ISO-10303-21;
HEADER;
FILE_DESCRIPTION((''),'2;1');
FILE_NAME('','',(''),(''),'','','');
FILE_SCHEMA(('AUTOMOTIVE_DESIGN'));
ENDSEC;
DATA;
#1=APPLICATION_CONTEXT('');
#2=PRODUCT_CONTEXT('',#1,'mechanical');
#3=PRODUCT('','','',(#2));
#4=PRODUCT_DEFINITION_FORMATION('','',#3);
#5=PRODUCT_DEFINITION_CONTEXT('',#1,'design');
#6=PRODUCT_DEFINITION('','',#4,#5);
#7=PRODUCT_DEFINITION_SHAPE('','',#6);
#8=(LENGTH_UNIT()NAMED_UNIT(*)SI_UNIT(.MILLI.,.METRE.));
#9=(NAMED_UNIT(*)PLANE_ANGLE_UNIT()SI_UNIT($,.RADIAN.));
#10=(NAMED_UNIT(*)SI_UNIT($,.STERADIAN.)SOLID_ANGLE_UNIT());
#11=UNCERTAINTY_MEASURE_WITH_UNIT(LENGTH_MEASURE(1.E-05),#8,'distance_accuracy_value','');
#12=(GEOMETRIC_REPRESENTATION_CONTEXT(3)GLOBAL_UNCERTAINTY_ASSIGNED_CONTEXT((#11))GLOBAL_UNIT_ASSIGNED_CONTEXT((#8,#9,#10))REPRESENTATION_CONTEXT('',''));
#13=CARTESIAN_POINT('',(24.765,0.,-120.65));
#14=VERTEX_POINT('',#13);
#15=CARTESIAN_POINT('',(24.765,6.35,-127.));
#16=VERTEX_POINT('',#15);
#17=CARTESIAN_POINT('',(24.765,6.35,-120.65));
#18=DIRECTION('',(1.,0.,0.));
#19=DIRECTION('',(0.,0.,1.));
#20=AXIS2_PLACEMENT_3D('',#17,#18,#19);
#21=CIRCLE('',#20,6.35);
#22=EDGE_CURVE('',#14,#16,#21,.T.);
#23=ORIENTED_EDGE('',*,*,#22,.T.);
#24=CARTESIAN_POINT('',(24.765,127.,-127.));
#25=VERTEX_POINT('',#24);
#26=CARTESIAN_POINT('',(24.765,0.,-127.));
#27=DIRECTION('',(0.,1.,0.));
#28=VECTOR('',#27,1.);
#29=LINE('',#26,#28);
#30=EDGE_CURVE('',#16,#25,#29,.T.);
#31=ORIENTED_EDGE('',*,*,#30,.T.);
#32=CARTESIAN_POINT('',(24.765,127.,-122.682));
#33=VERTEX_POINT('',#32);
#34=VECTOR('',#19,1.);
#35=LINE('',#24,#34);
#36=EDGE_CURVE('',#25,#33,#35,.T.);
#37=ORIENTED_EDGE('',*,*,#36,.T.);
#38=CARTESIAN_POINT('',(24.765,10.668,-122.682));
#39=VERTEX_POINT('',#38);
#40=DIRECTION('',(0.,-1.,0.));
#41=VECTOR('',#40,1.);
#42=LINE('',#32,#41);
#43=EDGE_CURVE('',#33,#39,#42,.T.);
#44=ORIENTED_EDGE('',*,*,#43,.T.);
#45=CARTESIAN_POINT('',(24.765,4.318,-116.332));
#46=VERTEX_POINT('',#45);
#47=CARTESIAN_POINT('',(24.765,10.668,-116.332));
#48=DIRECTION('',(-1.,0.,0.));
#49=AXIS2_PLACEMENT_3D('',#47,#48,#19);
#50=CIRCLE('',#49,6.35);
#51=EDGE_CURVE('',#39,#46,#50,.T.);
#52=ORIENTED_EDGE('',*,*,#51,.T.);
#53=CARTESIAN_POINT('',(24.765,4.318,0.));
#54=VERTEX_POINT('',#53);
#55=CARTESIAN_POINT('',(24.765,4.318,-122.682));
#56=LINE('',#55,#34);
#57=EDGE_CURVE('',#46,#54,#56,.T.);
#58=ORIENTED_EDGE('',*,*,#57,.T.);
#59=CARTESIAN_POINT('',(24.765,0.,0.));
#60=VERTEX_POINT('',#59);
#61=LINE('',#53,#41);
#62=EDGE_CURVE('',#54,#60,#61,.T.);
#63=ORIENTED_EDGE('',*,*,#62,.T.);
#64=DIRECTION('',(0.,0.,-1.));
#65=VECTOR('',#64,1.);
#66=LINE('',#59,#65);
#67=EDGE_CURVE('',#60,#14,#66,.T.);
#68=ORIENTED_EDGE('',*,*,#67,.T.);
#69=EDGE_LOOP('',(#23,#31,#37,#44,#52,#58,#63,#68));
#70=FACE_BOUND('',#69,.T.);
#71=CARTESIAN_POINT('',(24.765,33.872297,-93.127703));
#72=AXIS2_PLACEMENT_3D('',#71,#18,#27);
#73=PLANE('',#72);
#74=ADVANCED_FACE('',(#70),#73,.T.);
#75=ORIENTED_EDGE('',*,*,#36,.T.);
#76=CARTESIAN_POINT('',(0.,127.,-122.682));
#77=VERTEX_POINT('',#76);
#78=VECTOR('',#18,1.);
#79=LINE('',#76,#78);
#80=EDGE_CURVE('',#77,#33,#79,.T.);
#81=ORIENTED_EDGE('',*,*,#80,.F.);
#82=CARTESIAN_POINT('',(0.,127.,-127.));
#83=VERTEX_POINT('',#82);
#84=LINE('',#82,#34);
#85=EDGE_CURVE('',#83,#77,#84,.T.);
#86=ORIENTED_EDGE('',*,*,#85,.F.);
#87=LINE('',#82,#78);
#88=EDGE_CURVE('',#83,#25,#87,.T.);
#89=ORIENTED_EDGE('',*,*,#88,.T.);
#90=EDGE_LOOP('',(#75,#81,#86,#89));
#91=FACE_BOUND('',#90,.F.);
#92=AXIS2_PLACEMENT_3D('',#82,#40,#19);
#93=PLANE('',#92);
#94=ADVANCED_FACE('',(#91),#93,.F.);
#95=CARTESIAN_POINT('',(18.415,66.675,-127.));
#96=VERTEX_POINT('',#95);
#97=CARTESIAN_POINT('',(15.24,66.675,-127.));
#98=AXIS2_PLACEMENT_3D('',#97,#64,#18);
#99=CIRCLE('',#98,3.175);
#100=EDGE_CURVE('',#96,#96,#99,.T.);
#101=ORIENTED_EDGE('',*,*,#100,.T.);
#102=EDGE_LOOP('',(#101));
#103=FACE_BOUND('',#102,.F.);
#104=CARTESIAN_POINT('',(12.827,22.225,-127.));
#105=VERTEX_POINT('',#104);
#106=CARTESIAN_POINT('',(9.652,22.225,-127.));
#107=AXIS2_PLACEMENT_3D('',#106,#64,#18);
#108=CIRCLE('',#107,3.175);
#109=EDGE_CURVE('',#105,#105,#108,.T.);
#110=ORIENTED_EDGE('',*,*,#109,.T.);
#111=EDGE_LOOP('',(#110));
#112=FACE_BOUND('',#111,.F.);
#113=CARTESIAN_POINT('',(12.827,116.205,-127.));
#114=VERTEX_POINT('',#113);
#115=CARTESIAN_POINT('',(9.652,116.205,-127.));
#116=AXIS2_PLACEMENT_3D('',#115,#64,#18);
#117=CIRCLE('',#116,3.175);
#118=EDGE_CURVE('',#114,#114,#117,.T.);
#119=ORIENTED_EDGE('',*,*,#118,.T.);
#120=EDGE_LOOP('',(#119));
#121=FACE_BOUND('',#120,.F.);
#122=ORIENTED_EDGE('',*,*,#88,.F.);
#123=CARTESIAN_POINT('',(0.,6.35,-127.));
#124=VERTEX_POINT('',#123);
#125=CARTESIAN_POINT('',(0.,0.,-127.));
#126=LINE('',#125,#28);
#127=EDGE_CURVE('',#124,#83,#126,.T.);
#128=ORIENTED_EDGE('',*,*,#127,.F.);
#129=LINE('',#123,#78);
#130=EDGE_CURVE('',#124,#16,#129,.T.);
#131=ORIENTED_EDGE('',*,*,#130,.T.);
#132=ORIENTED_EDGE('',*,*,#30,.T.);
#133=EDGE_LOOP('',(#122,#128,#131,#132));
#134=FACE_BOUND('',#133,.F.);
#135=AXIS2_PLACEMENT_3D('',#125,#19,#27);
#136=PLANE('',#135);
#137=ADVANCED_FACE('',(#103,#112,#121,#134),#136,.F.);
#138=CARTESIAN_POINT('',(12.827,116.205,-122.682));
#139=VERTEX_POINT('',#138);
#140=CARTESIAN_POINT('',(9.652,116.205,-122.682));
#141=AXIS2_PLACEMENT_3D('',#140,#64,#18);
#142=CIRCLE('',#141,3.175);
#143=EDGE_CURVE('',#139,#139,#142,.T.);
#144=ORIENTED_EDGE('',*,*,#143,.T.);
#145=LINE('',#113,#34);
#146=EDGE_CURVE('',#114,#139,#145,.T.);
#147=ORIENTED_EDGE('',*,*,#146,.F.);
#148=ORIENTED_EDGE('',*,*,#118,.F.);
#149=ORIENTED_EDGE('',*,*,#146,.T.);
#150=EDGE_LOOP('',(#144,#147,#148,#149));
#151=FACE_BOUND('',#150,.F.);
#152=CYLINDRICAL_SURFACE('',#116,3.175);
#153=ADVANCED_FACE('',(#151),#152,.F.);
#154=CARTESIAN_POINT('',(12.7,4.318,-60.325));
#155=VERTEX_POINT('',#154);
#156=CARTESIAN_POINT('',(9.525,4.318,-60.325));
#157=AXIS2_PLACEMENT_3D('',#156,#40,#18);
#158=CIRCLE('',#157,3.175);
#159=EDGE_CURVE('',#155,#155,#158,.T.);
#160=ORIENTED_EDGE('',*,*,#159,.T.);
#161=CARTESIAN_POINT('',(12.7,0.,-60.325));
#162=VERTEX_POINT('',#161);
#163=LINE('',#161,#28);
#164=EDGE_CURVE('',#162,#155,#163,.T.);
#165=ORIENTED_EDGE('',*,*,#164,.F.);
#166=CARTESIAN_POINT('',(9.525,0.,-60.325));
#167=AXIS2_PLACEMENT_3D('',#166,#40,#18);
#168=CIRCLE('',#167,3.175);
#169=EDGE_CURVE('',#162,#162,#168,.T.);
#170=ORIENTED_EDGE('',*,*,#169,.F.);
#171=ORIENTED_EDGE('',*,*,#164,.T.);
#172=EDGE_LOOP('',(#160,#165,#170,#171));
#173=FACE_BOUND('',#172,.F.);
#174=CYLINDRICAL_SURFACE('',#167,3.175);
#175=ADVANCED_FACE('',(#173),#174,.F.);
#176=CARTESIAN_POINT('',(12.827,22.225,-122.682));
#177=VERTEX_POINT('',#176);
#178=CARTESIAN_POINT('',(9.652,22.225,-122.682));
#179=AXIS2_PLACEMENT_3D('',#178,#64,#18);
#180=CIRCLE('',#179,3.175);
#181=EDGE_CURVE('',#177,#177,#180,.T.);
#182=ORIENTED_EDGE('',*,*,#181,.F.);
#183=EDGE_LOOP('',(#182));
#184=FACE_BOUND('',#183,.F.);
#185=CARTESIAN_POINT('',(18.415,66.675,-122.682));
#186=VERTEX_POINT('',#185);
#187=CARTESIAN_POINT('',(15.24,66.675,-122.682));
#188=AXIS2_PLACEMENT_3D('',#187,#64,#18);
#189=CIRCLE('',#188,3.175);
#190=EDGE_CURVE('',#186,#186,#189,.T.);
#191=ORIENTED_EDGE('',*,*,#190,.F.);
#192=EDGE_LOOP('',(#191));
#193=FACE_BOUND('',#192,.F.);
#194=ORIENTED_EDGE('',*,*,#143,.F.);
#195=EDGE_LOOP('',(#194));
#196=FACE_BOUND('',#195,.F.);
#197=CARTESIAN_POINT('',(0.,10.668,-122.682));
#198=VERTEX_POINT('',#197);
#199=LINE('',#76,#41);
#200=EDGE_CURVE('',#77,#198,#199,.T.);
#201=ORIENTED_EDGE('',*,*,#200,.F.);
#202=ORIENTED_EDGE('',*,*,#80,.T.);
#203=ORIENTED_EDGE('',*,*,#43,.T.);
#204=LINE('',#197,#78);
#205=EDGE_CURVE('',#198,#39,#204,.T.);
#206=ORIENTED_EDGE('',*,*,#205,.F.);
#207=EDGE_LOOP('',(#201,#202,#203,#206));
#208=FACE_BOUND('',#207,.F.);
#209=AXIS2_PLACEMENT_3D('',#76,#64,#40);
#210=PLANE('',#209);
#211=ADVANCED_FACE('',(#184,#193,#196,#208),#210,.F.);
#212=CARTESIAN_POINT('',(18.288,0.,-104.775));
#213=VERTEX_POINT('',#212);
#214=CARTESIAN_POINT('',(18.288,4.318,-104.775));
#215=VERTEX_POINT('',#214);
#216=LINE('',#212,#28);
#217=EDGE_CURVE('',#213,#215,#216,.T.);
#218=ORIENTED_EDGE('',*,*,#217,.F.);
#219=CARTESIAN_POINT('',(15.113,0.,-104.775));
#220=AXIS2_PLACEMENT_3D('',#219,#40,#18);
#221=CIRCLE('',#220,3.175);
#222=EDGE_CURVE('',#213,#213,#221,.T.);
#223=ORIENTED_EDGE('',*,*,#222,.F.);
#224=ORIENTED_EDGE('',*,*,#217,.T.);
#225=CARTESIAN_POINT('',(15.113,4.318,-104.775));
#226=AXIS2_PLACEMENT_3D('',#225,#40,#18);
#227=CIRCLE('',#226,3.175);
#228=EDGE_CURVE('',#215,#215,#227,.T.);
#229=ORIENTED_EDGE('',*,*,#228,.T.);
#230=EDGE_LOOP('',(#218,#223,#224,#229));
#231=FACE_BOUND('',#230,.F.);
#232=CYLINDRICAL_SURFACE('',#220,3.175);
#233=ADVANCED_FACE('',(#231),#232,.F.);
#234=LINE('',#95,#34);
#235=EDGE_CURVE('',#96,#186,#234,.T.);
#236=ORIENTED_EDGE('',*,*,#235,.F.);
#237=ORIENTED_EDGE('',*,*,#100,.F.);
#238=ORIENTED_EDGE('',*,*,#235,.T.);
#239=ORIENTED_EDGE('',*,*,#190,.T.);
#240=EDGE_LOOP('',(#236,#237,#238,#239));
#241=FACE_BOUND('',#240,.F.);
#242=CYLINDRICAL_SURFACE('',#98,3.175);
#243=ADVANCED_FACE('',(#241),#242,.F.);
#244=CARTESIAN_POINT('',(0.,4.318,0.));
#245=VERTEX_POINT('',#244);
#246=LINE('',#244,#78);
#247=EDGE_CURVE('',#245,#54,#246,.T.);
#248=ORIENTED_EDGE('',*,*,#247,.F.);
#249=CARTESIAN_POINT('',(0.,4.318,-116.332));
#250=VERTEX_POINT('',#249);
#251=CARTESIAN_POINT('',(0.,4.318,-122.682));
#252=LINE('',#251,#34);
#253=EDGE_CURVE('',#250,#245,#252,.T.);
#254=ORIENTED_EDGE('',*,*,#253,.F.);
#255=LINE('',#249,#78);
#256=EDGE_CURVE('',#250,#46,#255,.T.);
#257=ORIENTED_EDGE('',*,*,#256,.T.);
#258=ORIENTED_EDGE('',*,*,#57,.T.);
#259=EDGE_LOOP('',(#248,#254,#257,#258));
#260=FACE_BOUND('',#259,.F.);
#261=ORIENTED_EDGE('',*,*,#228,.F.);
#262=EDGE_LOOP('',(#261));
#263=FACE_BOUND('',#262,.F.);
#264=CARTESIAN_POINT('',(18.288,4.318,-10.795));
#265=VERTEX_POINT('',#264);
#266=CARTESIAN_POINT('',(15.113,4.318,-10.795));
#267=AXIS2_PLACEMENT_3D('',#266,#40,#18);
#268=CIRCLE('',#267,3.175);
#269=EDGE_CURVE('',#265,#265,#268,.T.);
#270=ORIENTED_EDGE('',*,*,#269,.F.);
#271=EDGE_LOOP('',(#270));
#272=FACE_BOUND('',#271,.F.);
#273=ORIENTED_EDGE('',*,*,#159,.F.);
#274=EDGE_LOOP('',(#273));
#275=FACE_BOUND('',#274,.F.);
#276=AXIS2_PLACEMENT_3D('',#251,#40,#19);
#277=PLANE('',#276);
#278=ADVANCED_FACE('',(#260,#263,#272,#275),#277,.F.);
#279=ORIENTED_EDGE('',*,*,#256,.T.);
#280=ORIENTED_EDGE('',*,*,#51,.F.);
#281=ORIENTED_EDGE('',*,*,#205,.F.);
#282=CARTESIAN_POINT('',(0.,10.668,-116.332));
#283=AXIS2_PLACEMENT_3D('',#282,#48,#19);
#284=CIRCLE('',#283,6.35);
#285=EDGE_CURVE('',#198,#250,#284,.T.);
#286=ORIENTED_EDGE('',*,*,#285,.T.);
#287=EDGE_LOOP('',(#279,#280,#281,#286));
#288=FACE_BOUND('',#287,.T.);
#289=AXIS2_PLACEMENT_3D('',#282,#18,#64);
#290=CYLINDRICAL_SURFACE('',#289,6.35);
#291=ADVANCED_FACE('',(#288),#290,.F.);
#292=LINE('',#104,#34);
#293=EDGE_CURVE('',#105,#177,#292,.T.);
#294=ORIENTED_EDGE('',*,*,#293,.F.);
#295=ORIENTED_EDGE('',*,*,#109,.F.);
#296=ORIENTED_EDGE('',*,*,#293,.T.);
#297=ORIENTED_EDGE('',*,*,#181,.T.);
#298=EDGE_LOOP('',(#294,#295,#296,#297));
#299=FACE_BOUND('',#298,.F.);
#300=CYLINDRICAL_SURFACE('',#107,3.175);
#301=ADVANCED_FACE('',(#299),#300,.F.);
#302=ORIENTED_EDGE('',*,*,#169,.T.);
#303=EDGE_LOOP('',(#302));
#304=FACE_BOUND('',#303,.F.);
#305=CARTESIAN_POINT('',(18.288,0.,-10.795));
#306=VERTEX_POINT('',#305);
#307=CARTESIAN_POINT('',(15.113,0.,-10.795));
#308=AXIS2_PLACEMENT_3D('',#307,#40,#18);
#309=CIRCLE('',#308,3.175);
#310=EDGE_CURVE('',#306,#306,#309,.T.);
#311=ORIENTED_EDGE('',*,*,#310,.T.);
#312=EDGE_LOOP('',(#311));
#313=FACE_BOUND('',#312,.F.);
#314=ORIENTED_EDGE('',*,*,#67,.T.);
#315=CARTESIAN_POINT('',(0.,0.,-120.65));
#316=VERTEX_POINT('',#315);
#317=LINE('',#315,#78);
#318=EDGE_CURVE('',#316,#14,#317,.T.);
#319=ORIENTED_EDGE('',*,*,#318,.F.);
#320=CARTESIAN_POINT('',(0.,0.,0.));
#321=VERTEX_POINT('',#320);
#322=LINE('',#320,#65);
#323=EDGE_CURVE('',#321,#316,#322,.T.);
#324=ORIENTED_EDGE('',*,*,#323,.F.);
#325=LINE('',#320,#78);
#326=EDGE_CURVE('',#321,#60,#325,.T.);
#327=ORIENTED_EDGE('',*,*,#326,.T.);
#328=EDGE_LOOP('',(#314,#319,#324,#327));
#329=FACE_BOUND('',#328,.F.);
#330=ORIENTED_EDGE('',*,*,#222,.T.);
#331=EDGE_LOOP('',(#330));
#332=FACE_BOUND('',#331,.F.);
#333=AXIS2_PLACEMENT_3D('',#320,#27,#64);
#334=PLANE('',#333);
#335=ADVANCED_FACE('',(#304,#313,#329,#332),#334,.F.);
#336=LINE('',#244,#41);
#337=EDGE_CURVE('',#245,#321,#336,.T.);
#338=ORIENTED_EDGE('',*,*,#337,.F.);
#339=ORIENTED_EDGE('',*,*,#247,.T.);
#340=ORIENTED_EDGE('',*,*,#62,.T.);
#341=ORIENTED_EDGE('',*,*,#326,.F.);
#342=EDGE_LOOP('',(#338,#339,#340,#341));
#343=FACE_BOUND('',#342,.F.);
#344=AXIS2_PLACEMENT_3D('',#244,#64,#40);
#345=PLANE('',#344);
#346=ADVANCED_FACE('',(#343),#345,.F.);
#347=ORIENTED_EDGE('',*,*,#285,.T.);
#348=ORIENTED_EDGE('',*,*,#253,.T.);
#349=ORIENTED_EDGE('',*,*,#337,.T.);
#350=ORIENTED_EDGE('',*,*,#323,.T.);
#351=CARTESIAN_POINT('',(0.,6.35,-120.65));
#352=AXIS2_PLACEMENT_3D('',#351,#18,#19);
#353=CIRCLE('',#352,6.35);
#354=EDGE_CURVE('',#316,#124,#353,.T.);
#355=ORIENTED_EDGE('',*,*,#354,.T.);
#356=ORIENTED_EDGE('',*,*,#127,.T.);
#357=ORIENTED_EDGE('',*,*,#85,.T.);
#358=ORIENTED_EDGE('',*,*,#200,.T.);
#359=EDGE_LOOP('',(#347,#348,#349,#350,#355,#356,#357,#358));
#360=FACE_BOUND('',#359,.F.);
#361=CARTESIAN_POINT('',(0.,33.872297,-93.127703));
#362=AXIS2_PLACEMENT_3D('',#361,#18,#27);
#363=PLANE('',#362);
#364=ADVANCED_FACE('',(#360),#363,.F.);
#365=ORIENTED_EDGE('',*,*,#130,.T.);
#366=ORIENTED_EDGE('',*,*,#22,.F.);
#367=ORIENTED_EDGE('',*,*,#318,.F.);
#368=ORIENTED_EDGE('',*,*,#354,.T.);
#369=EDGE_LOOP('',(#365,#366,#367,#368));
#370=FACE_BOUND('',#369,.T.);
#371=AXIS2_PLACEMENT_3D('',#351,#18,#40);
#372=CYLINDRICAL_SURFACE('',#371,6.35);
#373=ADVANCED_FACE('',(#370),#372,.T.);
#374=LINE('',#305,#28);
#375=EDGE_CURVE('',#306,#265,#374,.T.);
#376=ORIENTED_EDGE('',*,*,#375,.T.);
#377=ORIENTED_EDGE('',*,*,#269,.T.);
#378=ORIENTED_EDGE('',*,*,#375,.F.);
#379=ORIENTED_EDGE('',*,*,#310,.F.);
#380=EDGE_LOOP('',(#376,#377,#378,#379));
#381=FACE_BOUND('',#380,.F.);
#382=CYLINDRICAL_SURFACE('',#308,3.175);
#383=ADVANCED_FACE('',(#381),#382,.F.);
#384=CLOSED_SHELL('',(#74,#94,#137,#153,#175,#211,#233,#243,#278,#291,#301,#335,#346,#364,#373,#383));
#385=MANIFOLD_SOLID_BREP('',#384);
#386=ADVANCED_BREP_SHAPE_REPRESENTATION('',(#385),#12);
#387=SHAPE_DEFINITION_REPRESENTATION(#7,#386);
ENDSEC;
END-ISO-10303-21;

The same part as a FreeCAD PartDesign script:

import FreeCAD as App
import Part
import Sketcher

V = App.Vector
Q = App.Units.Quantity


def edges_at(feature, points):
    """Names of the edges that pass closest to the given points."""
    edges = feature.Shape.Edges
    near = lambda p: min(range(len(edges)), key=lambda i: edges[i].distToShape(Part.Vertex(*p))[0])
    return sorted({f"Edge{near(p) + 1}" for p in points})


def add_polygon(sketch, points):
    """Adds a closed chain of lines whose ends are joined by coincident constraints."""
    first, n = sketch.GeometryCount, len(points)
    for a, b in zip(points, points[1:] + points[:1]):
        sketch.addGeometry(Part.LineSegment(App.Vector(*a, 0), App.Vector(*b, 0)), False)
    for i in range(n):
        sketch.addConstraint(Sketcher.Constraint("Coincident", first + i, 2, first + (i + 1) % n, 1))

doc = App.newDocument("Part")
body = doc.addObject("PartDesign::Body", "Body")

sketch1 = doc.addObject("Sketcher::SketchObject", "Sketch")
body.addObject(sketch1)
sketch1.AttachmentSupport = (doc.YZ_Plane, [""])
sketch1.MapMode = "FlatFace"
add_polygon(sketch1, [(4.3, 0), (0, 0), (0, -127), (127, -127), (127, -122.7), (4.3, -122.7)])
sketch1.addConstraint([
    Sketcher.Constraint("Horizontal", 0),
    Sketcher.Constraint("Vertical", 1),
    Sketcher.Constraint("Horizontal", 2),
    Sketcher.Constraint("Vertical", 3),
    Sketcher.Constraint("Horizontal", 4),
    Sketcher.Constraint("Vertical", 5),
    Sketcher.Constraint("Coincident", 0, 2, -1, 1),
    Sketcher.Constraint("Equal", 2, 1),
    Sketcher.Constraint("Equal", 0, 3),
    Sketcher.Constraint("DistanceX", 2, 1, 2, 2, Q("5 in")),
    Sketcher.Constraint("DistanceX", 0, 2, 0, 1, Q("0.17 in")),
])
pad1 = doc.addObject("PartDesign::Pad", "Pad")
body.addObject(pad1)
pad1.Profile = sketch1
pad1.Length = Q("0.975 in")
doc.recompute()

fillet = doc.addObject("PartDesign::Fillet", "Fillet")
body.addObject(fillet)
fillet.Base = (pad1, edges_at(pad1, [(12.383, 4.318, -122.682), (12.383, 0, -127)]))
fillet.Radius = Q("0.25 in")

sketch2 = doc.addObject("Sketcher::SketchObject", "Sketch001")
body.addObject(sketch2)
sketch2.AttachmentSupport = (doc.XZ_Plane, [""])
sketch2.MapMode = "FlatFace"
sketch2.addGeometry([
    Part.Circle(V(15.1, -104.8, 0), V(0, 0, 1), 3.2),
    Part.Circle(V(9.5, -60.3, 0), V(0, 0, 1), 3.2),
    Part.Circle(V(15.1, -10.8, 0), V(0, 0, 1), 3.2),
], False)
sketch2.addConstraint([
    Sketcher.Constraint("Equal", 0, 1),
    Sketcher.Constraint("Equal", 1, 2),
    Sketcher.Constraint("Vertical", 0, 3, 2, 3),
    Sketcher.Constraint("Diameter", 0, Q("0.25 in")),
    Sketcher.Constraint("DistanceY", 0, 3, 2, 3, Q("3.7 in")),
    Sketcher.Constraint("DistanceX", 1, 3, 0, 3, Q("0.22 in")),
    Sketcher.Constraint("DistanceY", 0, 3, 1, 3, Q("1.75 in")),
    Sketcher.Constraint("DistanceX", -1, 1, 0, 3, Q("0.595 in")),
    Sketcher.Constraint("DistanceY", 0, 3, -1, 1, Q("4.125 in")),
])
pocket1 = doc.addObject("PartDesign::Pocket", "Pocket")
body.addObject(pocket1)
pocket1.Profile = sketch2
pocket1.Type = "ThroughAll"

sketch3 = doc.addObject("Sketcher::SketchObject", "Sketch002")
body.addObject(sketch3)
sketch3.AttachmentSupport = (doc.XY_Plane, [""])
sketch3.MapMode = "FlatFace"
sketch3.AttachmentOffset = App.Placement(V(0, 0, -5 * 25.4), App.Rotation())
sketch3.addGeometry([
    Part.Circle(V(9.7, 116.2, 0), V(0, 0, 1), 3.2),
    Part.Circle(V(15.2, 66.7, 0), V(0, 0, 1), 3.2),
    Part.Circle(V(9.7, 22.2, 0), V(0, 0, 1), 3.2),
], False)
sketch3.addConstraint([
    Sketcher.Constraint("Equal", 0, 1),
    Sketcher.Constraint("Equal", 1, 2),
    Sketcher.Constraint("Vertical", 0, 3, 2, 3),
    Sketcher.Constraint("Diameter", 0, Q("0.25 in")),
    Sketcher.Constraint("DistanceX", -1, 1, 1, 3, Q("0.6 in")),
    Sketcher.Constraint("DistanceY", 2, 3, 0, 3, Q("3.7 in")),
    Sketcher.Constraint("DistanceX", -1, 1, 0, 3, Q("0.38 in")),
    Sketcher.Constraint("DistanceY", 1, 3, 0, 3, Q("1.95 in")),
    Sketcher.Constraint("DistanceY", -1, 1, 0, 3, Q("4.575 in")),
])
pocket2 = doc.addObject("PartDesign::Pocket", "Pocket001")
body.addObject(pocket2)
pocket2.Profile = sketch3
pocket2.Type = "ThroughAll"
pocket2.Reversed = True

doc.recompute()
